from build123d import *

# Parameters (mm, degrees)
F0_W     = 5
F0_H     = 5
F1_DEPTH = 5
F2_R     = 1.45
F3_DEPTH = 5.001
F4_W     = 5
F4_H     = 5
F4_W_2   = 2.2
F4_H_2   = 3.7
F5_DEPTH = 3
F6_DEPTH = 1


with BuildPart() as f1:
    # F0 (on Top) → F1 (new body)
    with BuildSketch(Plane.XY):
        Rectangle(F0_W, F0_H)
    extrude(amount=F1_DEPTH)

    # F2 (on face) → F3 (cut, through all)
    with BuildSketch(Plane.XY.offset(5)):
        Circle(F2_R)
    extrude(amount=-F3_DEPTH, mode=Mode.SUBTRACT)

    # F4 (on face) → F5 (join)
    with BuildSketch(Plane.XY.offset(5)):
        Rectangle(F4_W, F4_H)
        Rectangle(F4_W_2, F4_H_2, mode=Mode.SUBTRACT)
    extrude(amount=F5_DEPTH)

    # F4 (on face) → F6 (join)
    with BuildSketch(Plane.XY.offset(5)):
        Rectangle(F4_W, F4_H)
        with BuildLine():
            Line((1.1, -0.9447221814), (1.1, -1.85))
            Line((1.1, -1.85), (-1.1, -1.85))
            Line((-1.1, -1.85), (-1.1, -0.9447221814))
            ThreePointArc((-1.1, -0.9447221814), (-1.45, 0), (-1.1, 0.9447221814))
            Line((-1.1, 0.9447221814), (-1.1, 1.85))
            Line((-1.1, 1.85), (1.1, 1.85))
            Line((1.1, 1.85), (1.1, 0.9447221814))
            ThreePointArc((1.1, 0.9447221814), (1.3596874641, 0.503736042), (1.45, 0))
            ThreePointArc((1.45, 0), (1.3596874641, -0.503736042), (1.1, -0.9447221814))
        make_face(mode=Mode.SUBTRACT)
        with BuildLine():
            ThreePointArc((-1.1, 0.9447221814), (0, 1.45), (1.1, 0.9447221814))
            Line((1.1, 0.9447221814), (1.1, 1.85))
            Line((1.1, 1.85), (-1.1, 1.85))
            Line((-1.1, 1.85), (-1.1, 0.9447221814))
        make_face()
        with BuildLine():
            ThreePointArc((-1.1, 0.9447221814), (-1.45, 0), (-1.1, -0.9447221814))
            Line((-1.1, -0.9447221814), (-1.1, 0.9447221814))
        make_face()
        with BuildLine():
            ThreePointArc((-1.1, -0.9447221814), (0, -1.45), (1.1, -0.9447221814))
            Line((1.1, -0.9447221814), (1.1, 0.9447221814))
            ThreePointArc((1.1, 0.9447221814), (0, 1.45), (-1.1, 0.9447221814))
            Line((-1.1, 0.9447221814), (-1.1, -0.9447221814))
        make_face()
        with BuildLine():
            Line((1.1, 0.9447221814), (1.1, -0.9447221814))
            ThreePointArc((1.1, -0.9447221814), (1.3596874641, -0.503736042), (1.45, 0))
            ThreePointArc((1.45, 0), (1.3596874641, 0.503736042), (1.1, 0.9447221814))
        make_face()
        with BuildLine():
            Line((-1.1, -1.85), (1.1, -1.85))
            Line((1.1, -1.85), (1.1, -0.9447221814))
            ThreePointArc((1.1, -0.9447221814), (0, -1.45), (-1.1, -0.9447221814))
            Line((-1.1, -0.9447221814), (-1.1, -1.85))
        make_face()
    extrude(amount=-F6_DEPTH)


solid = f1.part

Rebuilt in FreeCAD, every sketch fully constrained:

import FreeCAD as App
import Part
import Sketcher
from FreeCAD import Vector

doc = App.newDocument("Part")
params = doc.addObject("Spreadsheet::Sheet", "Params")
for row, (alias, value) in enumerate([
    ("sketch1_width", "5 mm"),
    ("pad1_length", "5 mm"),
    ("sketch2_diameter", "2.9 mm"),
    ("sketch3_width", "5 mm"),
    ("sketch3_width2", "2.2 mm"),
    ("sketch3_height", "3.7 mm"),
    ("pad2_length", "3 mm"),
    ("sketch4_width", "5 mm"),
    ("pad3_length", "1 mm"),
], start=1):
    params.set(f"A{row}", alias)
    params.set(f"B{row}", "=" + value)
    params.setAlias(f"B{row}", alias)

body = doc.addObject("PartDesign::Body", "Body")

# Sketch on XY plane
sketch1 = doc.addObject("Sketcher::SketchObject", "Sketch")
body.addObject(sketch1)
sketch1.AttachmentSupport = (doc.XY_Plane, [""])
sketch1.MapMode = "FlatFace"
sketch1.addGeometry([
    Part.LineSegment(Vector(-2.5, 2.5, 0), Vector(-2.5, -2.5, 0)),
    Part.LineSegment(Vector(-2.5, -2.5, 0), Vector(2.5, -2.5, 0)),
    Part.LineSegment(Vector(2.5, -2.5, 0), Vector(2.5, 2.5, 0)),
    Part.LineSegment(Vector(2.5, 2.5, 0), Vector(-2.5, 2.5, 0)),
], False)
sketch1.addConstraint([
    Sketcher.Constraint("Coincident", 0, 2, 1, 1),
    Sketcher.Constraint("Coincident", 1, 2, 2, 1),
    Sketcher.Constraint("Coincident", 2, 2, 3, 1),
    Sketcher.Constraint("Coincident", 3, 2, 0, 1),
    Sketcher.Constraint("Vertical", 0),
    Sketcher.Constraint("Horizontal", 1),
    Sketcher.Constraint("Vertical", 2),
    Sketcher.Constraint("Horizontal", 3),
    Sketcher.Constraint("Symmetric", 0, 2, 2, 2, -1, 1),
    Sketcher.Constraint("Equal", 3, 0),
    Sketcher.Constraint("DistanceX", 1, 1, 1, 2, 5.0),
])
sketch1.setExpression("Constraints[10]", "Params.sketch1_width")
pad1 = doc.addObject("PartDesign::Pad", "Pad")
body.addObject(pad1)
pad1.Profile = sketch1
pad1.setExpression("Length", "Params.pad1_length")

# Sketch on XY plane
sketch2 = doc.addObject("Sketcher::SketchObject", "Sketch001")
body.addObject(sketch2)
sketch2.AttachmentSupport = (doc.XY_Plane, [""])
sketch2.MapMode = "FlatFace"
sketch2.AttachmentOffset = App.Placement(Vector(0, 0, 5), App.Rotation())
sketch2.addGeometry(Part.Circle(Vector(0, 0, 0), Vector(0, 0, 1), 1.45), False)
sketch2.addConstraint([
    Sketcher.Constraint("Coincident", 0, 3, -1, 1),
    Sketcher.Constraint("Diameter", 0, 2.9),
])
sketch2.setExpression("Constraints[1]", "Params.sketch2_diameter")
pocket1 = doc.addObject("PartDesign::Pocket", "Pocket")
body.addObject(pocket1)
pocket1.Profile = sketch2
pocket1.Type = "ThroughAll"

# Sketch on XY plane
sketch3 = doc.addObject("Sketcher::SketchObject", "Sketch002")
body.addObject(sketch3)
sketch3.AttachmentSupport = (doc.XY_Plane, [""])
sketch3.MapMode = "FlatFace"
sketch3.AttachmentOffset = App.Placement(Vector(0, 0, 5), App.Rotation())
sketch3.addGeometry([
    Part.LineSegment(Vector(-2.5, 2.5, 0), Vector(-2.5, -2.5, 0)),  # 0
    Part.LineSegment(Vector(-2.5, -2.5, 0), Vector(2.5, -2.5, 0)),  # 1
    Part.LineSegment(Vector(2.5, -2.5, 0), Vector(2.5, 2.5, 0)),  # 2
    Part.LineSegment(Vector(2.5, 2.5, 0), Vector(-2.5, 2.5, 0)),  # 3
    Part.LineSegment(Vector(1.1, -1.85, 0), Vector(-1.1, -1.85, 0)),  # 4
    Part.LineSegment(Vector(-1.1, -1.85, 0), Vector(-1.1, 1.85, 0)),  # 5
    Part.LineSegment(Vector(-1.1, 1.85, 0), Vector(1.1, 1.85, 0)),  # 6
    Part.LineSegment(Vector(1.1, 1.85, 0), Vector(1.1, -1.85, 0)),  # 7
], False)
sketch3.addConstraint([
    Sketcher.Constraint("Coincident", 0, 2, 1, 1),
    Sketcher.Constraint("Coincident", 1, 2, 2, 1),
    Sketcher.Constraint("Coincident", 2, 2, 3, 1),
    Sketcher.Constraint("Coincident", 3, 2, 0, 1),
    Sketcher.Constraint("Coincident", 4, 2, 5, 1),
    Sketcher.Constraint("Coincident", 5, 2, 6, 1),
    Sketcher.Constraint("Coincident", 6, 2, 7, 1),
    Sketcher.Constraint("Coincident", 7, 2, 4, 1),
    Sketcher.Constraint("Vertical", 0),
    Sketcher.Constraint("Horizontal", 1),
    Sketcher.Constraint("Vertical", 2),
    Sketcher.Constraint("Horizontal", 3),
    Sketcher.Constraint("Horizontal", 4),
    Sketcher.Constraint("Vertical", 5),
    Sketcher.Constraint("Horizontal", 6),
    Sketcher.Constraint("Vertical", 7),
    Sketcher.Constraint("Symmetric", 0, 2, 2, 2, -1, 1),
    Sketcher.Constraint("Symmetric", 4, 2, 6, 2, -1, 1),
    Sketcher.Constraint("Equal", 3, 0),
    Sketcher.Constraint("DistanceX", 1, 1, 1, 2, 5.0),
    Sketcher.Constraint("DistanceX", 4, 2, 4, 1, 2.2),
    Sketcher.Constraint("DistanceY", 5, 1, 5, 2, 3.7),
])
sketch3.setExpression("Constraints[19]", "Params.sketch3_width")
sketch3.setExpression("Constraints[20]", "Params.sketch3_width2")
sketch3.setExpression("Constraints[21]", "Params.sketch3_height")
pad2 = doc.addObject("PartDesign::Pad", "Pad001")
body.addObject(pad2)
pad2.Profile = sketch3
pad2.setExpression("Length", "Params.pad2_length")

# Sketch on XY plane
sketch4 = doc.addObject("Sketcher::SketchObject", "Sketch003")
body.addObject(sketch4)
sketch4.AttachmentSupport = (doc.XY_Plane, [""])
sketch4.MapMode = "FlatFace"
sketch4.AttachmentOffset = App.Placement(Vector(0, 0, 5), App.Rotation())
sketch4.addGeometry([
    Part.LineSegment(Vector(-2.5, 2.5, 0), Vector(-2.5, -2.5, 0)),
    Part.LineSegment(Vector(-2.5, -2.5, 0), Vector(2.5, -2.5, 0)),
    Part.LineSegment(Vector(2.5, -2.5, 0), Vector(2.5, 2.5, 0)),
    Part.LineSegment(Vector(2.5, 2.5, 0), Vector(-2.5, 2.5, 0)),
], False)
sketch4.addConstraint([
    Sketcher.Constraint("Coincident", 0, 2, 1, 1),
    Sketcher.Constraint("Coincident", 1, 2, 2, 1),
    Sketcher.Constraint("Coincident", 2, 2, 3, 1),
    Sketcher.Constraint("Coincident", 3, 2, 0, 1),
    Sketcher.Constraint("Vertical", 0),
    Sketcher.Constraint("Horizontal", 1),
    Sketcher.Constraint("Vertical", 2),
    Sketcher.Constraint("Horizontal", 3),
    Sketcher.Constraint("Symmetric", 0, 2, 2, 2, -1, 1),
    Sketcher.Constraint("Equal", 3, 0),
    Sketcher.Constraint("DistanceX", 1, 1, 1, 2, 5.0),
])
sketch4.setExpression("Constraints[10]", "Params.sketch4_width")
pad3 = doc.addObject("PartDesign::Pad", "Pad002")
body.addObject(pad3)
pad3.Profile = sketch4
pad3.setExpression("Length", "Params.pad3_length")
pad3.Reversed = True

doc.recompute()
